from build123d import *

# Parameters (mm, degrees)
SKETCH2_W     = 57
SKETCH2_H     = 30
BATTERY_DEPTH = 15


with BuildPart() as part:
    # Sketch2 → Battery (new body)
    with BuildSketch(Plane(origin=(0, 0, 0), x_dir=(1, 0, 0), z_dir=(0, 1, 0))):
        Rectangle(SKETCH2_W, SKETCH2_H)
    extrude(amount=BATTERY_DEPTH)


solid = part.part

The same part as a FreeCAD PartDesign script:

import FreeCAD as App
import Part
import Sketcher
Q = App.Units.Quantity

doc = App.newDocument("Part")
body = doc.addObject("PartDesign::Body", "Body")

sketch1 = body.newObject("Sketcher::SketchObject", "Sketch")
sketch1.AttachmentSupport = (doc.getObject("XZ_Plane"), [""])
sketch1.MapMode = "FlatFace"
sketch1.addGeometry(Part.LineSegment(App.Vector(-28.5, -15, 0), App.Vector(-28.5, 15, 0)), False)
sketch1.addGeometry(Part.LineSegment(App.Vector(-28.5, 15, 0), App.Vector(28.5, 15, 0)), False)
sketch1.addGeometry(Part.LineSegment(App.Vector(28.5, 15, 0), App.Vector(28.5, -15, 0)), False)
sketch1.addGeometry(Part.LineSegment(App.Vector(28.5, -15, 0), App.Vector(-28.5, -15, 0)), False)
sketch1.addConstraint(Sketcher.Constraint("Coincident", 0, 2, 1, 1))
sketch1.addConstraint(Sketcher.Constraint("Coincident", 1, 2, 2, 1))
sketch1.addConstraint(Sketcher.Constraint("Coincident", 2, 2, 3, 1))
sketch1.addConstraint(Sketcher.Constraint("Coincident", 3, 2, 0, 1))
sketch1.addConstraint(Sketcher.Constraint("Vertical", 0))
sketch1.addConstraint(Sketcher.Constraint("Horizontal", 1))
sketch1.addConstraint(Sketcher.Constraint("Vertical", 2))
sketch1.addConstraint(Sketcher.Constraint("Horizontal", 3))
sketch1.addConstraint(Sketcher.Constraint("Symmetric", 0, 2, 2, 2, -1, 1))
sketch1.addConstraint(Sketcher.Constraint("DistanceX", 1, 1, 1, 2, Q("57 mm")))
sketch1.addConstraint(Sketcher.Constraint("DistanceY", 0, 1, 0, 2, Q("30 mm")))
pad1 = body.newObject("PartDesign::Pad", "Pad")
pad1.Profile = sketch1
pad1.Length = 15
pad1.Reversed = True

doc.recompute()
